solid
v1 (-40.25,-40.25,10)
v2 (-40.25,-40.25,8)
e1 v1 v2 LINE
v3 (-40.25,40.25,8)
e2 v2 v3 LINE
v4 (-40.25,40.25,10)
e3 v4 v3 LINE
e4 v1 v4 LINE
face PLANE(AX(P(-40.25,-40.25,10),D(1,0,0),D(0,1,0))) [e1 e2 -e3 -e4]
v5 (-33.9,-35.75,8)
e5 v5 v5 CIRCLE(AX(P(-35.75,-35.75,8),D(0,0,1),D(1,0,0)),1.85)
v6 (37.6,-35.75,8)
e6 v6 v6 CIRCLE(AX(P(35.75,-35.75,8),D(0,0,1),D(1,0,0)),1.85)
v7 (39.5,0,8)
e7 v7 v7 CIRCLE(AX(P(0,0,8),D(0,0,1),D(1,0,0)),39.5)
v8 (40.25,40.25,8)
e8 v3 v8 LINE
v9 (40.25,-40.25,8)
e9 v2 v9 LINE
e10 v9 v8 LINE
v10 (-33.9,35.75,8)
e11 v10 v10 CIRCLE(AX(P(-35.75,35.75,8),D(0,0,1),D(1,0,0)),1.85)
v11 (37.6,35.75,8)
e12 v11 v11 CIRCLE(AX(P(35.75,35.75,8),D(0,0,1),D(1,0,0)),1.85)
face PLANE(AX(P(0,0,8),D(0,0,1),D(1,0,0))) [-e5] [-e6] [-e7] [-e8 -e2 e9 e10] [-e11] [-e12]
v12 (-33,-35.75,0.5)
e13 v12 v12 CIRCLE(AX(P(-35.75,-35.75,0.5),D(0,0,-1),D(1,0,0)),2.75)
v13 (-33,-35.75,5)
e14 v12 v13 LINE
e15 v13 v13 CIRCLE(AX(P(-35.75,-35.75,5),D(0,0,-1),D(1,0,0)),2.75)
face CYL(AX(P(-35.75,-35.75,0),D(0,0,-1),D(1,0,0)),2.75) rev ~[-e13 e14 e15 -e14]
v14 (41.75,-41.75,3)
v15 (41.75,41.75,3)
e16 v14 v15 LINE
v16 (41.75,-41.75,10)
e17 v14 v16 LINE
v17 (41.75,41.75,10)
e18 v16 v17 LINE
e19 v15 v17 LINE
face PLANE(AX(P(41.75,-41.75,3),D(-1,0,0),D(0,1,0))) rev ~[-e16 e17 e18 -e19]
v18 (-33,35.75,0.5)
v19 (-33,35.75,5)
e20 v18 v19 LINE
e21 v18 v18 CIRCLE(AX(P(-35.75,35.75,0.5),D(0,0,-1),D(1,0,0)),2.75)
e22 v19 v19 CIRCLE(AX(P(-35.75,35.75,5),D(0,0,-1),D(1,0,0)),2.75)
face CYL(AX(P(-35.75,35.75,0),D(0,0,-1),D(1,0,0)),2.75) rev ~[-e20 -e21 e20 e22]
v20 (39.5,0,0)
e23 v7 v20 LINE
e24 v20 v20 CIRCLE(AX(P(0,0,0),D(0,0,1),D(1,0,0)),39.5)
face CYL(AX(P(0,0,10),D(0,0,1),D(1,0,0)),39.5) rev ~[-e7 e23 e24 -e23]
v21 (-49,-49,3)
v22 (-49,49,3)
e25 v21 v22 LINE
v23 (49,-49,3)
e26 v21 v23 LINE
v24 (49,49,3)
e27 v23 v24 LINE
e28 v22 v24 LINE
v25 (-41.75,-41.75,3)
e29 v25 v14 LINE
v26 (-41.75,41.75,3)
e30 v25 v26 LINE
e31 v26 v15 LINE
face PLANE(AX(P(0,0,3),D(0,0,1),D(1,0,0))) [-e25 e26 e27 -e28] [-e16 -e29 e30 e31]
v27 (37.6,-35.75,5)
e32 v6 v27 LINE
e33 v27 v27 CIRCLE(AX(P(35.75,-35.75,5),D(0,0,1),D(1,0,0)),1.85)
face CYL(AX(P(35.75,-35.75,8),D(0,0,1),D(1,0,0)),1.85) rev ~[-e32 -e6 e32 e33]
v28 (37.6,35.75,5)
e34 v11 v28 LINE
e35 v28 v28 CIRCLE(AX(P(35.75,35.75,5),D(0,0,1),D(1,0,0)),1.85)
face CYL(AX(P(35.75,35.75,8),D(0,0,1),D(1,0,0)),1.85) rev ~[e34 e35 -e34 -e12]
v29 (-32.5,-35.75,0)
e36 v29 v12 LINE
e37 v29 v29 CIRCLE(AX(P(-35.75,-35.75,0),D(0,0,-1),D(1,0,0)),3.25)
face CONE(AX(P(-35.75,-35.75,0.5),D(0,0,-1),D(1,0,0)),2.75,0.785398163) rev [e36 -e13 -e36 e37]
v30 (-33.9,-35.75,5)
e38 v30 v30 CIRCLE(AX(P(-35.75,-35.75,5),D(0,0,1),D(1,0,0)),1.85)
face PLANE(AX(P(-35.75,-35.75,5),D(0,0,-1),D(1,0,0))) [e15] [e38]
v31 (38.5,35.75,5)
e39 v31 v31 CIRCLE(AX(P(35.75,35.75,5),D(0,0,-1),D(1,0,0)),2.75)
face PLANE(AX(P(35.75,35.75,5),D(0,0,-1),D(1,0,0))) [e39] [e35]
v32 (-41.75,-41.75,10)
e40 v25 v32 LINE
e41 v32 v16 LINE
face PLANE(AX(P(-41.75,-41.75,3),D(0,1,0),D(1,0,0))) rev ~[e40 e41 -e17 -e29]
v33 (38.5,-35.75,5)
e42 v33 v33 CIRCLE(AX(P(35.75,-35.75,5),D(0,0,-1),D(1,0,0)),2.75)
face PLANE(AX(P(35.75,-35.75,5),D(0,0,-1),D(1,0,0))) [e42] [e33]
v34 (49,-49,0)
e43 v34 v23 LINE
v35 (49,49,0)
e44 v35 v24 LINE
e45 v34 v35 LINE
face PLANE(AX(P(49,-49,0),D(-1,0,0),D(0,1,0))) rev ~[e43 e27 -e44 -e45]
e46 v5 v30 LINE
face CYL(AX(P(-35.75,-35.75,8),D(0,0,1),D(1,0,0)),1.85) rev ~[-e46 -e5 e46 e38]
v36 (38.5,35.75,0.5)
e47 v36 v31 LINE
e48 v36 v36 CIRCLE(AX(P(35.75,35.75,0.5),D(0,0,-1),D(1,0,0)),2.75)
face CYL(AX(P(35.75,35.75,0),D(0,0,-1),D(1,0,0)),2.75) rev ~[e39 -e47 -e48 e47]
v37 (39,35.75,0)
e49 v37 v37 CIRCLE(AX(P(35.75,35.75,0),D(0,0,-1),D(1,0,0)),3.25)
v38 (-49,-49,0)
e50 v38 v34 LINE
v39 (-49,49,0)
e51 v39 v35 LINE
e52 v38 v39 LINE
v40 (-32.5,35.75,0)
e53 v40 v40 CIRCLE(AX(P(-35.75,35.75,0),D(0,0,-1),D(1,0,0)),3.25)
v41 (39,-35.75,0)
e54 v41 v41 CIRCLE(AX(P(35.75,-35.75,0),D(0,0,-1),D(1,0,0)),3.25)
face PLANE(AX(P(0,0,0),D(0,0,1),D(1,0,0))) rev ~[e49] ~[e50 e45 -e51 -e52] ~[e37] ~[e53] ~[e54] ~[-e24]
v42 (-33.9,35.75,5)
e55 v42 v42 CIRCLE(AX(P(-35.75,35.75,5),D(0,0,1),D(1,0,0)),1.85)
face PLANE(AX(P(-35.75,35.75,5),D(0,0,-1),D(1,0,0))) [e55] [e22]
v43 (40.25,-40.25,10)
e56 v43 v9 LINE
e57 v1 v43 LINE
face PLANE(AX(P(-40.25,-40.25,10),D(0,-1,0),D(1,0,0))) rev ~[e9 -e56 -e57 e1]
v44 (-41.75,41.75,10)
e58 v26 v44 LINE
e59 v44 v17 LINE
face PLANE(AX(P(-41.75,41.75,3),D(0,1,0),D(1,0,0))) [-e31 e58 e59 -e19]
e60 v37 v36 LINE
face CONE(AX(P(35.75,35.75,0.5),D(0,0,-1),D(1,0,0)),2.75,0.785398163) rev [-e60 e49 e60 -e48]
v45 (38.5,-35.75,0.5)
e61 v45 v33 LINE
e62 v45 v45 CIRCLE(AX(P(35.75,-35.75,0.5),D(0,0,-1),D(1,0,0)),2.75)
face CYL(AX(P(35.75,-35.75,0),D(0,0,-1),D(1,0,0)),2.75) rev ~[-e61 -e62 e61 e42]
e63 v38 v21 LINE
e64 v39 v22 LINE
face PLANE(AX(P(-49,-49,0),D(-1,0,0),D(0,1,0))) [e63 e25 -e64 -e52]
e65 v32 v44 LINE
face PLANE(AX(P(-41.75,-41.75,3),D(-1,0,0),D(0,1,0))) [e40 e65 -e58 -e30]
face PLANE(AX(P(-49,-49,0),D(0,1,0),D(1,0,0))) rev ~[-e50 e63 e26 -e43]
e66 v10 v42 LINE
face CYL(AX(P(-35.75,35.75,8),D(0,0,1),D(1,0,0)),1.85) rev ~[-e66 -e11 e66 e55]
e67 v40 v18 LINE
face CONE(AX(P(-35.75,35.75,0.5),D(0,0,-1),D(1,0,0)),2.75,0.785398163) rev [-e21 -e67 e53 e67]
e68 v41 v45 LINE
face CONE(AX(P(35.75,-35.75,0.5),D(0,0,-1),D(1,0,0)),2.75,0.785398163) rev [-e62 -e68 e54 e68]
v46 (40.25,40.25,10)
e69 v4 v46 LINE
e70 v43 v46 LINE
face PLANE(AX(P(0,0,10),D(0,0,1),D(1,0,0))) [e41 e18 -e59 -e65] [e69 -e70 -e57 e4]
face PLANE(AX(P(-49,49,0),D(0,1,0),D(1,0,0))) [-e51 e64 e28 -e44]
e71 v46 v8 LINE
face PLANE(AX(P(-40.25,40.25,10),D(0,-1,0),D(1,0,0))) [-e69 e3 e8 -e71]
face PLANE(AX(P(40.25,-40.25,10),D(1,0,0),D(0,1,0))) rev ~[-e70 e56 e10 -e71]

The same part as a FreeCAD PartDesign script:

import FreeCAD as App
import Part
import Sketcher
Q = App.Units.Quantity


def edges_at(feature, points):
    """Names of the edges that pass closest to the given points."""
    edges = feature.Shape.Edges
    near = lambda p: min(range(len(edges)), key=lambda i: edges[i].distToShape(Part.Vertex(*p))[0])
    return sorted({f"Edge{near(p) + 1}" for p in points})

doc = App.newDocument("Part")
body = doc.addObject("PartDesign::Body", "Body")

# Sketch on XY plane
sketch1 = doc.addObject("Sketcher::SketchObject", "Sketch")
body.addObject(sketch1)
sketch1.AttachmentSupport = (doc.XY_Plane, [""])
sketch1.MapMode = "FlatFace"
sketch1.addGeometry([
    Part.LineSegment(App.Vector(-49, 49, 0), App.Vector(-49, -49, 0)),
    Part.LineSegment(App.Vector(-49, -49, 0), App.Vector(49, -49, 0)),
    Part.LineSegment(App.Vector(49, -49, 0), App.Vector(49, 49, 0)),
    Part.LineSegment(App.Vector(49, 49, 0), App.Vector(-49, 49, 0)),
], False)
sketch1.addConstraint([
    Sketcher.Constraint("Coincident", 0, 2, 1, 1),
    Sketcher.Constraint("Coincident", 1, 2, 2, 1),
    Sketcher.Constraint("Coincident", 2, 2, 3, 1),
    Sketcher.Constraint("Coincident", 3, 2, 0, 1),
    Sketcher.Constraint("Vertical", 0),
    Sketcher.Constraint("Horizontal", 1),
    Sketcher.Constraint("Vertical", 2),
    Sketcher.Constraint("Horizontal", 3),
    Sketcher.Constraint("Symmetric", 0, 2, 2, 2, -1, 1),
    Sketcher.Constraint("Equal", 3, 0),
    Sketcher.Constraint("DistanceX", 1, 1, 1, 2, Q("98 mm")),
])
pad1 = doc.addObject("PartDesign::Pad", "Pad")
body.addObject(pad1)
pad1.Profile = sketch1
pad1.Length = 3

# Sketch on XY plane
sketch2 = doc.addObject("Sketcher::SketchObject", "Sketch001")
body.addObject(sketch2)
sketch2.AttachmentSupport = (doc.XY_Plane, [""])
sketch2.MapMode = "FlatFace"
sketch2.AttachmentOffset = App.Placement(App.Vector(0, 0, 3), App.Rotation())
sketch2.addGeometry([
    Part.LineSegment(App.Vector(-41.75, 41.75, 0), App.Vector(-41.75, -41.75, 0)),
    Part.LineSegment(App.Vector(-41.75, -41.75, 0), App.Vector(41.75, -41.75, 0)),
    Part.LineSegment(App.Vector(41.75, -41.75, 0), App.Vector(41.75, 41.75, 0)),
    Part.LineSegment(App.Vector(41.75, 41.75, 0), App.Vector(-41.75, 41.75, 0)),
], False)
sketch2.addConstraint([
    Sketcher.Constraint("Coincident", 0, 2, 1, 1),
    Sketcher.Constraint("Coincident", 1, 2, 2, 1),
    Sketcher.Constraint("Coincident", 2, 2, 3, 1),
    Sketcher.Constraint("Coincident", 3, 2, 0, 1),
    Sketcher.Constraint("Vertical", 0),
    Sketcher.Constraint("Horizontal", 1),
    Sketcher.Constraint("Vertical", 2),
    Sketcher.Constraint("Horizontal", 3),
    Sketcher.Constraint("Symmetric", 0, 2, 2, 2, -1, 1),
    Sketcher.Constraint("Equal", 3, 0),
    Sketcher.Constraint("DistanceX", 1, 1, 1, 2, Q("83.5 mm")),
])
pad2 = doc.addObject("PartDesign::Pad", "Pad001")
body.addObject(pad2)
pad2.Profile = sketch2
pad2.Length = 7

# Sketch on XY plane
sketch3 = doc.addObject("Sketcher::SketchObject", "Sketch002")
body.addObject(sketch3)
sketch3.AttachmentSupport = (doc.XY_Plane, [""])
sketch3.MapMode = "FlatFace"
sketch3.AttachmentOffset = App.Placement(App.Vector(0, 0, 10), App.Rotation())
sketch3.addGeometry(Part.Circle(App.Vector(0, 0, 0), App.Vector(0, 0, 1), 39.5), False)
sketch3.addConstraint([
    Sketcher.Constraint("Coincident", 0, 3, -1, 1),
    Sketcher.Constraint("Diameter", 0, Q("79 mm")),
])
pocket1 = doc.addObject("PartDesign::Pocket", "Pocket")
body.addObject(pocket1)
pocket1.Profile = sketch3
pocket1.Length = 10

# Sketch on XY plane
sketch4 = doc.addObject("Sketcher::SketchObject", "Sketch003")
body.addObject(sketch4)
sketch4.AttachmentSupport = (doc.XY_Plane, [""])
sketch4.MapMode = "FlatFace"
sketch4.AttachmentOffset = App.Placement(App.Vector(0, 0, 10), App.Rotation())
sketch4.addGeometry([
    Part.LineSegment(App.Vector(-40.25, 40.25, 0), App.Vector(-40.25, -40.25, 0)),
    Part.LineSegment(App.Vector(-40.25, -40.25, 0), App.Vector(40.25, -40.25, 0)),
    Part.LineSegment(App.Vector(40.25, -40.25, 0), App.Vector(40.25, 40.25, 0)),
    Part.LineSegment(App.Vector(40.25, 40.25, 0), App.Vector(-40.25, 40.25, 0)),
], False)
sketch4.addConstraint([
    Sketcher.Constraint("Coincident", 0, 2, 1, 1),
    Sketcher.Constraint("Coincident", 1, 2, 2, 1),
    Sketcher.Constraint("Coincident", 2, 2, 3, 1),
    Sketcher.Constraint("Coincident", 3, 2, 0, 1),
    Sketcher.Constraint("Vertical", 0),
    Sketcher.Constraint("Horizontal", 1),
    Sketcher.Constraint("Vertical", 2),
    Sketcher.Constraint("Horizontal", 3),
    Sketcher.Constraint("Symmetric", 0, 2, 2, 2, -1, 1),
    Sketcher.Constraint("Equal", 3, 0),
    Sketcher.Constraint("DistanceX", 1, 1, 1, 2, Q("80.5 mm")),
])
pocket2 = doc.addObject("PartDesign::Pocket", "Pocket001")
body.addObject(pocket2)
pocket2.Profile = sketch4
pocket2.Length = 2

# Sketch on XY plane
sketch5 = doc.addObject("Sketcher::SketchObject", "Sketch004")
body.addObject(sketch5)
sketch5.AttachmentSupport = (doc.XY_Plane, [""])
sketch5.MapMode = "FlatFace"
sketch5.AttachmentOffset = App.Placement(App.Vector(0, 0, 8), App.Rotation())
sketch5.addGeometry([
    Part.Circle(App.Vector(-35.75, 35.75, 0), App.Vector(0, 0, 1), 1.85),
    Part.Circle(App.Vector(35.75, 35.75, 0), App.Vector(0, 0, 1), 1.85),
    Part.Circle(App.Vector(35.75, -35.75, 0), App.Vector(0, 0, 1), 1.85),
    Part.Circle(App.Vector(-35.75, -35.75, 0), App.Vector(0, 0, 1), 1.85),
], False)
sketch5.addConstraint([
    Sketcher.Constraint("Equal", 0, 1),
    Sketcher.Constraint("Equal", 1, 2),
    Sketcher.Constraint("Equal", 2, 3),
    Sketcher.Constraint("Symmetric", 0, 3, 2, 3, -1, 1),
    Sketcher.Constraint("Symmetric", 1, 3, 3, 3, -1, 1),
    Sketcher.Constraint("Symmetric", 0, 3, 1, 3, -2),
    Sketcher.Constraint("Diameter", 0, Q("3.7 mm")),
    Sketcher.Constraint("DistanceX", 0, 3, 1, 3, Q("71.5 mm")),
    Sketcher.Constraint("DistanceY", 2, 3, 1, 3, Q("71.5 mm")),
])
pocket3 = doc.addObject("PartDesign::Pocket", "Pocket002")
body.addObject(pocket3)
pocket3.Profile = sketch5
pocket3.Length = 8

# Sketch on XY plane
sketch6 = doc.addObject("Sketcher::SketchObject", "Sketch005")
body.addObject(sketch6)
sketch6.AttachmentSupport = (doc.XY_Plane, [""])
sketch6.MapMode = "FlatFace"
sketch6.addGeometry([
    Part.Circle(App.Vector(-35.75, -35.75, 0), App.Vector(0, 0, 1), 2.75),
    Part.Circle(App.Vector(35.75, -35.75, 0), App.Vector(0, 0, 1), 2.75),
    Part.Circle(App.Vector(35.75, 35.75, 0), App.Vector(0, 0, 1), 2.75),
    Part.Circle(App.Vector(-35.75, 35.75, 0), App.Vector(0, 0, 1), 2.75),
], False)
sketch6.addConstraint([
    Sketcher.Constraint("Equal", 0, 1),
    Sketcher.Constraint("Equal", 1, 2),
    Sketcher.Constraint("Equal", 2, 3),
    Sketcher.Constraint("Symmetric", 0, 3, 2, 3, -1, 1),
    Sketcher.Constraint("Symmetric", 1, 3, 3, 3, -1, 1),
    Sketcher.Constraint("Symmetric", 0, 3, 1, 3, -2),
    Sketcher.Constraint("Diameter", 0, Q("5.5 mm")),
    Sketcher.Constraint("DistanceX", 0, 3, 1, 3, Q("71.5 mm")),
    Sketcher.Constraint("DistanceY", 1, 3, 2, 3, Q("71.5 mm")),
])
pocket4 = doc.addObject("PartDesign::Pocket", "Pocket003")
body.addObject(pocket4)
pocket4.Profile = sketch6
pocket4.Length = 5
pocket4.Reversed = True
doc.recompute()

chamfer = doc.addObject("PartDesign::Chamfer", "Chamfer")
body.addObject(chamfer)
chamfer.Base = (pocket4, edges_at(pocket4, [
    (33, 35.75, 0),
    (33, -35.75, 0),
    (-38.5, -35.75, 0),
    (-38.5, 35.75, 0),
]))
chamfer.Size = 0.5

doc.recompute()
